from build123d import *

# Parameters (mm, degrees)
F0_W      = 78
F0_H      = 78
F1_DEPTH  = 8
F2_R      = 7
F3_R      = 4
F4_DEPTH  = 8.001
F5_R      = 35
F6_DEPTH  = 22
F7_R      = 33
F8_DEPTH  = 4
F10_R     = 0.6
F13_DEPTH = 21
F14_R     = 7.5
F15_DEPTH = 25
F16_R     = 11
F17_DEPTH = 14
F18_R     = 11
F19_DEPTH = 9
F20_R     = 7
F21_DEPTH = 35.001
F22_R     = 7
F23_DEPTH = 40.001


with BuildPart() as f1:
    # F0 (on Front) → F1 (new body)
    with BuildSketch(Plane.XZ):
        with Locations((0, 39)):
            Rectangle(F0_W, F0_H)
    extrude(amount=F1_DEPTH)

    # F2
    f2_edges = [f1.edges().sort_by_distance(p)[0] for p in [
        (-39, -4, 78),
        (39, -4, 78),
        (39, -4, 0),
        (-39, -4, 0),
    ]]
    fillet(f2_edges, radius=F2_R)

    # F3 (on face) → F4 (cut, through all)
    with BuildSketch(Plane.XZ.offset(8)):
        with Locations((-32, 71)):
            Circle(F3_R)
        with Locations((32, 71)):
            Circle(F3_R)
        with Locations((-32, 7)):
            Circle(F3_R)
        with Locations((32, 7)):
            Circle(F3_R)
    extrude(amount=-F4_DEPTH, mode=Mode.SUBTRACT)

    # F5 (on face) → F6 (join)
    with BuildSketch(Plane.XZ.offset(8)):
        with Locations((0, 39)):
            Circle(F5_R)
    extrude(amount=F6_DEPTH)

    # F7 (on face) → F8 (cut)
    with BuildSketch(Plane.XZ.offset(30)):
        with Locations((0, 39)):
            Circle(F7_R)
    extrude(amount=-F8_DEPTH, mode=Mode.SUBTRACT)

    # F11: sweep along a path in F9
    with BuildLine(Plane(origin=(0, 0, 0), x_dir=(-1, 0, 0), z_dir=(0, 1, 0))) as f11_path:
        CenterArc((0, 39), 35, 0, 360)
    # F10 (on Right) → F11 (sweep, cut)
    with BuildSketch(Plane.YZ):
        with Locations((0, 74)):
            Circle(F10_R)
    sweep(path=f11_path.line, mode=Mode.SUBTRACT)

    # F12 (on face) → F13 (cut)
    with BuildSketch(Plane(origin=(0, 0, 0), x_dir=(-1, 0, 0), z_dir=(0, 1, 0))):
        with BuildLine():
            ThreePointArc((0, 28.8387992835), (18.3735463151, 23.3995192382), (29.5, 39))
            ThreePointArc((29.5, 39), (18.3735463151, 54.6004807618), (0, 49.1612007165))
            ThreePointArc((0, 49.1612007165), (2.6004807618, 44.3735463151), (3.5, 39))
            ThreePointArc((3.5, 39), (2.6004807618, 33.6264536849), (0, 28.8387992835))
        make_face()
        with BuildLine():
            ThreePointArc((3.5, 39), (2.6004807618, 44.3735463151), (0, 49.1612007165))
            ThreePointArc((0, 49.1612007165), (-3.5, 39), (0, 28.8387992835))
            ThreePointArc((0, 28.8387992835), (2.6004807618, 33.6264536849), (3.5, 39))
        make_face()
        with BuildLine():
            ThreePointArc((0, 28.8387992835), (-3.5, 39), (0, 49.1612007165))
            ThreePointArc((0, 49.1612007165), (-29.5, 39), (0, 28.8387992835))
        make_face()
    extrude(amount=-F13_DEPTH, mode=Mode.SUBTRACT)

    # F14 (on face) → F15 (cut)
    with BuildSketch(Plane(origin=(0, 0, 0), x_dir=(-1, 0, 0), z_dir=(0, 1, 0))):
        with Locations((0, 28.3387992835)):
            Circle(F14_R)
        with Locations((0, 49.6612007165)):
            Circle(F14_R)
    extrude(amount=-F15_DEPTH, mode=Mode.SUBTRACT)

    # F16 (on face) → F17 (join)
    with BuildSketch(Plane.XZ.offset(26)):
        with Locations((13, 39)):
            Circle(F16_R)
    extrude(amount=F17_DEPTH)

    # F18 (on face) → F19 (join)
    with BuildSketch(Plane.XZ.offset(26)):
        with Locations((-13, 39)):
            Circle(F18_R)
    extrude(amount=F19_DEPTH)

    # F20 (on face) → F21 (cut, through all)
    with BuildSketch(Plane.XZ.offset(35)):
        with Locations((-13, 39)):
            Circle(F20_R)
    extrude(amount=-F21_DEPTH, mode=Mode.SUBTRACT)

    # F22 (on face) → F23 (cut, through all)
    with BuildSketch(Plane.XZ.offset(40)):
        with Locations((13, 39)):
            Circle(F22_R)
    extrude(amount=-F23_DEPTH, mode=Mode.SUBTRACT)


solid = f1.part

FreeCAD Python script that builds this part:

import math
import FreeCAD as App
import Part
import Sketcher
Q = App.Units.Quantity


def edges_at(feature, points):
    """Names of the edges that pass closest to the given points."""
    edges = feature.Shape.Edges
    near = lambda p: min(range(len(edges)), key=lambda i: edges[i].distToShape(Part.Vertex(*p))[0])
    return sorted({f"Edge{near(p) + 1}" for p in points})


def add_polygon(sketch, points):
    """Adds a closed chain of lines whose ends are joined by coincident constraints."""
    first, n = sketch.GeometryCount, len(points)
    for a, b in zip(points, points[1:] + points[:1]):
        sketch.addGeometry(Part.LineSegment(App.Vector(*a, 0), App.Vector(*b, 0)), False)
    for i in range(n):
        sketch.addConstraint(Sketcher.Constraint("Coincident", first + i, 2, first + (i + 1) % n, 1))

doc = App.newDocument("Part")
body = doc.addObject("PartDesign::Body", "Body")

sketch1 = body.newObject("Sketcher::SketchObject", "Sketch")
sketch1.AttachmentSupport = (doc.getObject("XZ_Plane"), [""])
sketch1.MapMode = "FlatFace"
add_polygon(sketch1, [(-39, 78), (-39, 0), (39, 0), (39, 78)])
sketch1.addConstraint(Sketcher.Constraint("Vertical", 0))
sketch1.addConstraint(Sketcher.Constraint("Horizontal", 1))
sketch1.addConstraint(Sketcher.Constraint("Vertical", 2))
sketch1.addConstraint(Sketcher.Constraint("Horizontal", 3))
sketch1.addConstraint(Sketcher.Constraint("Symmetric", 0, 2, 1, 2, -1, 1))
sketch1.addConstraint(Sketcher.Constraint("Equal", 3, 0))
sketch1.addConstraint(Sketcher.Constraint("DistanceX", 1, 1, 1, 2, Q("78 mm")))
pad1 = body.newObject("PartDesign::Pad", "Pad")
pad1.Profile = sketch1
pad1.Length = 8
doc.recompute()

fillet = body.newObject("PartDesign::Fillet", "Fillet")
fillet.Base = (pad1, edges_at(pad1, [
    (-39, -4, 78),
    (39, -4, 78),
    (39, -4, 0),
    (-39, -4, 0),
]))
fillet.Radius = 7

sketch2 = body.newObject("Sketcher::SketchObject", "Sketch001")
sketch2.AttachmentSupport = (doc.getObject("XZ_Plane"), [""])
sketch2.MapMode = "FlatFace"
sketch2.AttachmentOffset = App.Placement(App.Vector(0, 0, 8), App.Rotation())
sketch2.addGeometry(Part.Circle(App.Vector(-32, 71, 0), App.Vector(0, 0, 1), 4), False)
sketch2.addGeometry(Part.Circle(App.Vector(32, 71, 0), App.Vector(0, 0, 1), 4), False)
sketch2.addGeometry(Part.Circle(App.Vector(-32, 7, 0), App.Vector(0, 0, 1), 4), False)
sketch2.addGeometry(Part.Circle(App.Vector(32, 7, 0), App.Vector(0, 0, 1), 4), False)
sketch2.addConstraint(Sketcher.Constraint("Equal", 0, 1))
sketch2.addConstraint(Sketcher.Constraint("Equal", 1, 2))
sketch2.addConstraint(Sketcher.Constraint("Equal", 2, 3))
sketch2.addConstraint(Sketcher.Constraint("Symmetric", 0, 3, 1, 3, -2))
sketch2.addConstraint(Sketcher.Constraint("Symmetric", 2, 3, 3, 3, -2))
sketch2.addConstraint(Sketcher.Constraint("Vertical", 0, 3, 2, 3))
sketch2.addConstraint(Sketcher.Constraint("Diameter", 0, Q("8 mm")))
sketch2.addConstraint(Sketcher.Constraint("DistanceX", 0, 3, -1, 1, Q("32 mm")))
sketch2.addConstraint(Sketcher.Constraint("DistanceY", -1, 1, 0, 3, Q("71 mm")))
sketch2.addConstraint(Sketcher.Constraint("DistanceY", -1, 1, 2, 3, Q("7 mm")))
pocket1 = body.newObject("PartDesign::Pocket", "Pocket")
pocket1.Profile = sketch2
pocket1.Type = "ThroughAll"

sketch3 = body.newObject("Sketcher::SketchObject", "Sketch002")
sketch3.AttachmentSupport = (doc.getObject("XZ_Plane"), [""])
sketch3.MapMode = "FlatFace"
sketch3.AttachmentOffset = App.Placement(App.Vector(0, 0, 8), App.Rotation())
sketch3.addGeometry(Part.Circle(App.Vector(0, 39, 0), App.Vector(0, 0, 1), 35), False)
sketch3.addConstraint(Sketcher.Constraint("PointOnObject", 0, 3, -2))
sketch3.addConstraint(Sketcher.Constraint("Diameter", 0, Q("70 mm")))
sketch3.addConstraint(Sketcher.Constraint("DistanceY", -1, 1, 0, 3, Q("39 mm")))
pad2 = body.newObject("PartDesign::Pad", "Pad001")
pad2.Profile = sketch3
pad2.Length = 22

sketch4 = body.newObject("Sketcher::SketchObject", "Sketch003")
sketch4.AttachmentSupport = (doc.getObject("XZ_Plane"), [""])
sketch4.MapMode = "FlatFace"
sketch4.AttachmentOffset = App.Placement(App.Vector(0, 0, 30), App.Rotation())
sketch4.addGeometry(Part.Circle(App.Vector(0, 39, 0), App.Vector(0, 0, 1), 33), False)
sketch4.addConstraint(Sketcher.Constraint("PointOnObject", 0, 3, -2))
sketch4.addConstraint(Sketcher.Constraint("Diameter", 0, Q("66 mm")))
sketch4.addConstraint(Sketcher.Constraint("DistanceY", -1, 1, 0, 3, Q("39 mm")))
pocket2 = body.newObject("PartDesign::Pocket", "Pocket001")
pocket2.Profile = sketch4
pocket2.Length = 4

sketch5 = body.newObject("Sketcher::SketchObject", "Sketch004")
sketch5.AttachmentSupport = (doc.getObject("YZ_Plane"), [""])
sketch5.MapMode = "FlatFace"
sketch5.addGeometry(Part.Circle(App.Vector(0, 74, 0), App.Vector(0, 0, 1), 0.6), False)
sketch5.addConstraint(Sketcher.Constraint("PointOnObject", 0, 3, -2))
sketch5.addConstraint(Sketcher.Constraint("Diameter", 0, Q("1.2 mm")))
sketch5.addConstraint(Sketcher.Constraint("DistanceY", -1, 1, 0, 3, Q("74 mm")))

sketch6 = body.newObject("Sketcher::SketchObject", "Sketch005")
sketch6.AttachmentSupport = (doc.getObject("XZ_Plane"), [""])
sketch6.MapMode = "FlatFace"
sketch6.addGeometry(Part.Circle(App.Vector(0, 39, 0), App.Vector(0, 0, 1), 35), False)
sketch6.addConstraint(Sketcher.Constraint("PointOnObject", 0, 3, -2))
sketch6.addConstraint(Sketcher.Constraint("Diameter", 0, Q("70 mm")))
sketch6.addConstraint(Sketcher.Constraint("DistanceY", -1, 1, 0, 3, Q("39 mm")))
doc.recompute()

subtractivepipe = body.newObject("PartDesign::SubtractivePipe", "SubtractivePipe")
subtractivepipe.Profile = sketch5
subtractivepipe.Spine = (sketch6, ["Edge1"])

sketch7 = body.newObject("Sketcher::SketchObject", "Sketch006")
sketch7.AttachmentSupport = (doc.getObject("XZ_Plane"), [""])
sketch7.MapMode = "FlatFace"
sketch7.addGeometry(Part.ArcOfCircle(Part.Circle(App.Vector(-13, 39, 0), App.Vector(0, 0, 1), 16), math.radians(180), math.radians(322)), False)
sketch7.addGeometry(Part.ArcOfCircle(Part.Circle(App.Vector(-13, 39, 0), App.Vector(0, 0, 1), 16), math.radians(38), math.radians(180)), False)
sketch7.addGeometry(Part.ArcOfCircle(Part.Circle(App.Vector(13, 39, 0), App.Vector(0, 0, 1), 16), math.radians(-142), math.radians(142)), False)
sketch7.addConstraint(Sketcher.Constraint("Tangent", 0, 1, 1, 2))
sketch7.addConstraint(Sketcher.Constraint("Coincident", 1, 1, 2, 2))
sketch7.addConstraint(Sketcher.Constraint("Coincident", 2, 1, 0, 2))
sketch7.addConstraint(Sketcher.Constraint("Equal", 0, 1))
sketch7.addConstraint(Sketcher.Constraint("Equal", 1, 2))
sketch7.addConstraint(Sketcher.Constraint("Symmetric", 0, 3, 2, 3, -2))
sketch7.addConstraint(Sketcher.Constraint("Horizontal", 2, 3, 0, 1))
sketch7.addConstraint(Sketcher.Constraint("Radius", 0, Q("16.5 mm")))
sketch7.addConstraint(Sketcher.Constraint("DistanceX", 0, 3, -1, 1, Q("13 mm")))
sketch7.addConstraint(Sketcher.Constraint("DistanceY", -1, 1, 0, 3, Q("39 mm")))
pocket3 = body.newObject("PartDesign::Pocket", "Pocket002")
pocket3.Profile = sketch7
pocket3.Length = 21
pocket3.Reversed = True

sketch8 = body.newObject("Sketcher::SketchObject", "Sketch007")
sketch8.AttachmentSupport = (doc.getObject("XZ_Plane"), [""])
sketch8.MapMode = "FlatFace"
sketch8.addGeometry(Part.Circle(App.Vector(0, 28, 0), App.Vector(0, 0, 1), 8), False)
sketch8.addGeometry(Part.Circle(App.Vector(0, 50, 0), App.Vector(0, 0, 1), 8), False)
sketch8.addConstraint(Sketcher.Constraint("Equal", 0, 1))
sketch8.addConstraint(Sketcher.Constraint("PointOnObject", 0, 3, -2))
sketch8.addConstraint(Sketcher.Constraint("PointOnObject", 1, 3, -2))
sketch8.addConstraint(Sketcher.Constraint("Diameter", 0, Q("15 mm")))
sketch8.addConstraint(Sketcher.Constraint("DistanceY", -1, 1, 0, 3, Q("28.338799 mm")))
sketch8.addConstraint(Sketcher.Constraint("DistanceY", -1, 1, 1, 3, Q("49.661201 mm")))
pocket4 = body.newObject("PartDesign::Pocket", "Pocket003")
pocket4.Profile = sketch8
pocket4.Length = 25
pocket4.Reversed = True

sketch9 = body.newObject("Sketcher::SketchObject", "Sketch008")
sketch9.AttachmentSupport = (doc.getObject("XZ_Plane"), [""])
sketch9.MapMode = "FlatFace"
sketch9.AttachmentOffset = App.Placement(App.Vector(0, 0, 26), App.Rotation())
sketch9.addGeometry(Part.Circle(App.Vector(13, 39, 0), App.Vector(0, 0, 1), 11), False)
sketch9.addConstraint(Sketcher.Constraint("Diameter", 0, Q("22 mm")))
sketch9.addConstraint(Sketcher.Constraint("DistanceX", -1, 1, 0, 3, Q("13 mm")))
sketch9.addConstraint(Sketcher.Constraint("DistanceY", -1, 1, 0, 3, Q("39 mm")))
pad3 = body.newObject("PartDesign::Pad", "Pad002")
pad3.Profile = sketch9
pad3.Length = 14

sketch10 = body.newObject("Sketcher::SketchObject", "Sketch009")
sketch10.AttachmentSupport = (doc.getObject("XZ_Plane"), [""])
sketch10.MapMode = "FlatFace"
sketch10.AttachmentOffset = App.Placement(App.Vector(0, 0, 26), App.Rotation())
sketch10.addGeometry(Part.Circle(App.Vector(-13, 39, 0), App.Vector(0, 0, 1), 11), False)
sketch10.addConstraint(Sketcher.Constraint("Diameter", 0, Q("22 mm")))
sketch10.addConstraint(Sketcher.Constraint("DistanceX", 0, 3, -1, 1, Q("13 mm")))
sketch10.addConstraint(Sketcher.Constraint("DistanceY", -1, 1, 0, 3, Q("39 mm")))
pad4 = body.newObject("PartDesign::Pad", "Pad003")
pad4.Profile = sketch10
pad4.Length = 9

sketch11 = body.newObject("Sketcher::SketchObject", "Sketch010")
sketch11.AttachmentSupport = (doc.getObject("XZ_Plane"), [""])
sketch11.MapMode = "FlatFace"
sketch11.AttachmentOffset = App.Placement(App.Vector(0, 0, 35), App.Rotation())
sketch11.addGeometry(Part.Circle(App.Vector(-13, 39, 0), App.Vector(0, 0, 1), 7), False)
sketch11.addConstraint(Sketcher.Constraint("Diameter", 0, Q("14 mm")))
sketch11.addConstraint(Sketcher.Constraint("DistanceX", 0, 3, -1, 1, Q("13 mm")))
sketch11.addConstraint(Sketcher.Constraint("DistanceY", -1, 1, 0, 3, Q("39 mm")))
pocket5 = body.newObject("PartDesign::Pocket", "Pocket004")
pocket5.Profile = sketch11
pocket5.Type = "ThroughAll"

sketch12 = body.newObject("Sketcher::SketchObject", "Sketch011")
sketch12.AttachmentSupport = (doc.getObject("XZ_Plane"), [""])
sketch12.MapMode = "FlatFace"
sketch12.AttachmentOffset = App.Placement(App.Vector(0, 0, 40), App.Rotation())
sketch12.addGeometry(Part.Circle(App.Vector(13, 39, 0), App.Vector(0, 0, 1), 7), False)
sketch12.addConstraint(Sketcher.Constraint("Diameter", 0, Q("14 mm")))
sketch12.addConstraint(Sketcher.Constraint("DistanceX", -1, 1, 0, 3, Q("13 mm")))
sketch12.addConstraint(Sketcher.Constraint("DistanceY", -1, 1, 0, 3, Q("39 mm")))
pocket6 = body.newObject("PartDesign::Pocket", "Pocket005")
pocket6.Profile = sketch12
pocket6.Type = "ThroughAll"

doc.recompute()
